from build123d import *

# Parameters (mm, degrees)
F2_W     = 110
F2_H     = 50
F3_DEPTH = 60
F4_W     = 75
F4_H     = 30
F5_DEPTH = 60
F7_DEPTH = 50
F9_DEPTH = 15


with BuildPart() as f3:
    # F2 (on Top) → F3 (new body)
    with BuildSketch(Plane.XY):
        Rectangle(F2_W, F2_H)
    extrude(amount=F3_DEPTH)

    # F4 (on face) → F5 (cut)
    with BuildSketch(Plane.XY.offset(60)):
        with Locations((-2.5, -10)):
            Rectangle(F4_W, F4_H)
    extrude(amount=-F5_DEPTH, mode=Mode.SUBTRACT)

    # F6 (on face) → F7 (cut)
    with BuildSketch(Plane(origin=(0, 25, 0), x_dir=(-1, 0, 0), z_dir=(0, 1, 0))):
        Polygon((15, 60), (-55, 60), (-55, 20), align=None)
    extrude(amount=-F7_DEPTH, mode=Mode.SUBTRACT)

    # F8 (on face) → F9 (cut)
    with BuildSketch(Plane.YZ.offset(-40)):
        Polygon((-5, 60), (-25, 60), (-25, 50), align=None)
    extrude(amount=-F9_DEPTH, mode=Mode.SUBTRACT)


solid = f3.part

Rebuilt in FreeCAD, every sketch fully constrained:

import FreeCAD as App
import Part
import Sketcher
from FreeCAD import Vector
Q = App.Units.Quantity

doc = App.newDocument("Part")
params = doc.addObject("Spreadsheet::Sheet", "Params")
for row, (alias, value) in enumerate([
    ("sketch1_width", "110 mm"),
    ("sketch1_height", "50 mm"),
    ("pad1_length", "60 mm"),
    ("sketch2_width", "75 mm"),
    ("sketch2_height", "30 mm"),
    ("pocket1_length", "60 mm"),
    ("sketch3_width", "70 mm"),
    ("sketch3_height", "40 mm"),
    ("pocket2_length", "50 mm"),
    ("sketch4_width", "20 mm"),
    ("sketch4_height", "10 mm"),
    ("pocket3_length", "15 mm"),
], start=1):
    params.set(f"A{row}", alias)
    params.set(f"B{row}", "=" + value)
    params.setAlias(f"B{row}", alias)

body = doc.addObject("PartDesign::Body", "Body")

# Sketch on XY plane
sketch1 = body.newObject("Sketcher::SketchObject", "Sketch")
sketch1.AttachmentSupport = (doc.getObject("XY_Plane"), [""])
sketch1.MapMode = "FlatFace"
sketch1.addGeometry([
    Part.LineSegment(Vector(-55, 25, 0), Vector(-55, -25, 0)),
    Part.LineSegment(Vector(-55, -25, 0), Vector(55, -25, 0)),
    Part.LineSegment(Vector(55, -25, 0), Vector(55, 25, 0)),
    Part.LineSegment(Vector(55, 25, 0), Vector(-55, 25, 0)),
], False)
sketch1.addConstraint([
    Sketcher.Constraint("Coincident", 0, 2, 1, 1),
    Sketcher.Constraint("Coincident", 1, 2, 2, 1),
    Sketcher.Constraint("Coincident", 2, 2, 3, 1),
    Sketcher.Constraint("Coincident", 3, 2, 0, 1),
    Sketcher.Constraint("Vertical", 0),
    Sketcher.Constraint("Horizontal", 1),
    Sketcher.Constraint("Vertical", 2),
    Sketcher.Constraint("Horizontal", 3),
    Sketcher.Constraint("Symmetric", 0, 2, 2, 2, -1, 1),
    Sketcher.Constraint("DistanceX", 1, 1, 1, 2, Q("110 mm")),
    Sketcher.Constraint("DistanceY", 0, 2, 0, 1, Q("50 mm")),
])
sketch1.setExpression("Constraints[9]", "Params.sketch1_width")
sketch1.setExpression("Constraints[10]", "Params.sketch1_height")
pad1 = body.newObject("PartDesign::Pad", "Pad")
pad1.Profile = sketch1
pad1.setExpression("Length", "Params.pad1_length")

# Sketch on XY plane
sketch2 = body.newObject("Sketcher::SketchObject", "Sketch001")
sketch2.AttachmentSupport = (doc.getObject("XY_Plane"), [""])
sketch2.MapMode = "FlatFace"
sketch2.AttachmentOffset = App.Placement(Vector(0, 0, 60), App.Rotation())
sketch2.addGeometry([
    Part.LineSegment(Vector(-40, 5, 0), Vector(-40, -25, 0)),
    Part.LineSegment(Vector(-40, -25, 0), Vector(35, -25, 0)),
    Part.LineSegment(Vector(35, -25, 0), Vector(35, 5, 0)),
    Part.LineSegment(Vector(35, 5, 0), Vector(-40, 5, 0)),
], False)
sketch2.addConstraint([
    Sketcher.Constraint("Coincident", 0, 2, 1, 1),
    Sketcher.Constraint("Coincident", 1, 2, 2, 1),
    Sketcher.Constraint("Coincident", 2, 2, 3, 1),
    Sketcher.Constraint("Coincident", 3, 2, 0, 1),
    Sketcher.Constraint("Vertical", 0),
    Sketcher.Constraint("Horizontal", 1),
    Sketcher.Constraint("Vertical", 2),
    Sketcher.Constraint("Horizontal", 3),
    Sketcher.Constraint("DistanceX", 1, 1, 1, 2, Q("75 mm")),
    Sketcher.Constraint("DistanceY", 0, 2, 0, 1, Q("30 mm")),
    Sketcher.Constraint("DistanceX", 0, 2, -1, 1, Q("40 mm")),
    Sketcher.Constraint("DistanceY", 0, 2, -1, 1, Q("25 mm")),
])
sketch2.setExpression("Constraints[8]", "Params.sketch2_width")
sketch2.setExpression("Constraints[9]", "Params.sketch2_height")
pocket1 = body.newObject("PartDesign::Pocket", "Pocket")
pocket1.Profile = sketch2
pocket1.setExpression("Length", "Params.pocket1_length")

# Sketch on XZ plane
sketch3 = body.newObject("Sketcher::SketchObject", "Sketch002")
sketch3.AttachmentSupport = (doc.getObject("XZ_Plane"), [""])
sketch3.MapMode = "FlatFace"
sketch3.AttachmentOffset = App.Placement(Vector(0, 0, -25), App.Rotation())
sketch3.addGeometry([
    Part.LineSegment(Vector(-15, 60, 0), Vector(55, 60, 0)),
    Part.LineSegment(Vector(55, 60, 0), Vector(55, 20, 0)),
    Part.LineSegment(Vector(55, 20, 0), Vector(-15, 60, 0)),
], False)
sketch3.addConstraint([
    Sketcher.Constraint("Coincident", 0, 2, 1, 1),
    Sketcher.Constraint("Coincident", 1, 2, 2, 1),
    Sketcher.Constraint("Coincident", 2, 2, 0, 1),
    Sketcher.Constraint("Horizontal", 0),
    Sketcher.Constraint("Vertical", 1),
    Sketcher.Constraint("DistanceX", 0, 1, 0, 2, Q("70 mm")),
    Sketcher.Constraint("DistanceY", 1, 2, 1, 1, Q("40 mm")),
    Sketcher.Constraint("DistanceX", -1, 1, 0, 2, Q("55 mm")),
    Sketcher.Constraint("DistanceY", -1, 1, 0, 2, Q("60 mm")),
])
sketch3.setExpression("Constraints[5]", "Params.sketch3_width")
sketch3.setExpression("Constraints[6]", "Params.sketch3_height")
pocket2 = body.newObject("PartDesign::Pocket", "Pocket001")
pocket2.Profile = sketch3
pocket2.setExpression("Length", "Params.pocket2_length")
pocket2.Reversed = True

# Sketch on YZ plane
sketch4 = body.newObject("Sketcher::SketchObject", "Sketch003")
sketch4.AttachmentSupport = (doc.getObject("YZ_Plane"), [""])
sketch4.MapMode = "FlatFace"
sketch4.AttachmentOffset = App.Placement(Vector(0, 0, -40), App.Rotation())
sketch4.addGeometry([
    Part.LineSegment(Vector(-5, 60, 0), Vector(-25, 60, 0)),
    Part.LineSegment(Vector(-25, 60, 0), Vector(-25, 50, 0)),
    Part.LineSegment(Vector(-25, 50, 0), Vector(-5, 60, 0)),
], False)
sketch4.addConstraint([
    Sketcher.Constraint("Coincident", 0, 2, 1, 1),
    Sketcher.Constraint("Coincident", 1, 2, 2, 1),
    Sketcher.Constraint("Coincident", 2, 2, 0, 1),
    Sketcher.Constraint("Horizontal", 0),
    Sketcher.Constraint("Vertical", 1),
    Sketcher.Constraint("DistanceX", 0, 2, 0, 1, Q("20 mm")),
    Sketcher.Constraint("DistanceY", 1, 2, 1, 1, Q("10 mm")),
    Sketcher.Constraint("DistanceX", 0, 2, -1, 1, Q("25 mm")),
    Sketcher.Constraint("DistanceY", -1, 1, 0, 2, Q("60 mm")),
])
sketch4.setExpression("Constraints[5]", "Params.sketch4_width")
sketch4.setExpression("Constraints[6]", "Params.sketch4_height")
pocket3 = body.newObject("PartDesign::Pocket", "Pocket002")
pocket3.Profile = sketch4
pocket3.setExpression("Length", "Params.pocket3_length")

doc.recompute()
